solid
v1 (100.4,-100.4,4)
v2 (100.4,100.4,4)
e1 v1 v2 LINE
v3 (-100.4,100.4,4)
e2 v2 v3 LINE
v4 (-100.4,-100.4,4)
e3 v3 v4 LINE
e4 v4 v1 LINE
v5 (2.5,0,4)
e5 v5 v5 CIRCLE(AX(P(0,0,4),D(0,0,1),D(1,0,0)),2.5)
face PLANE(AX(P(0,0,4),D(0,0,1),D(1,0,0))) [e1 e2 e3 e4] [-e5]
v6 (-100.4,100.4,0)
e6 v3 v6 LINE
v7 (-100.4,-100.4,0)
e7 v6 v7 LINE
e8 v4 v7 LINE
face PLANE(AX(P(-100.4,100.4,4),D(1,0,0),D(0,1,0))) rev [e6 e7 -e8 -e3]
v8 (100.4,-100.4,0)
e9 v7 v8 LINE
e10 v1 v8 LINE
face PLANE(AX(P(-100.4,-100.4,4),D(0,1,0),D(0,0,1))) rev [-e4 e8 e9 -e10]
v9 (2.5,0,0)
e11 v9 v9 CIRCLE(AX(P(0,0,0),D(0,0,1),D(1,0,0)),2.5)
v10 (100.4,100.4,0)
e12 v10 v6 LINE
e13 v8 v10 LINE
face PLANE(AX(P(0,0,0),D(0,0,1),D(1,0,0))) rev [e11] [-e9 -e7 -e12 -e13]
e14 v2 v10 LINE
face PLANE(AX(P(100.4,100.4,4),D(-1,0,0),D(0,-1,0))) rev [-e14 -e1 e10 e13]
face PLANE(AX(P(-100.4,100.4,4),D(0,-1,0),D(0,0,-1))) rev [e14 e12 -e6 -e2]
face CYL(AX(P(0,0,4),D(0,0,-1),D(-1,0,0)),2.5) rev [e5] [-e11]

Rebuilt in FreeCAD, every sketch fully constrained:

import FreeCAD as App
import Part
import Sketcher

V = App.Vector


def add_polygon(sketch, points):
    """Adds a closed chain of lines whose ends are joined by coincident constraints."""
    first, n = sketch.GeometryCount, len(points)
    for a, b in zip(points, points[1:] + points[:1]):
        sketch.addGeometry(Part.LineSegment(App.Vector(*a, 0), App.Vector(*b, 0)), False)
    for i in range(n):
        sketch.addConstraint(Sketcher.Constraint("Coincident", first + i, 2, first + (i + 1) % n, 1))

doc = App.newDocument("Part")
body = doc.addObject("PartDesign::Body", "Body")

# Sketch on XY plane
sketch1 = doc.addObject("Sketcher::SketchObject", "Sketch")
body.addObject(sketch1)
sketch1.AttachmentSupport = (doc.XY_Plane, [""])
sketch1.MapMode = "FlatFace"
add_polygon(sketch1, [(-100.4, 100.4), (-100.4, -100.4), (100.4, -100.4), (100.4, 100.4)])  # lines 0-3
sketch1.addGeometry(Part.Circle(V(0, 0, 0), V(0, 0, 1), 2.5), False)  # 4
sketch1.addConstraint([
    Sketcher.Constraint("Vertical", 0),
    Sketcher.Constraint("Horizontal", 1),
    Sketcher.Constraint("Vertical", 2),
    Sketcher.Constraint("Horizontal", 3),
    Sketcher.Constraint("Coincident", 4, 3, -1, 1),
    Sketcher.Constraint("Symmetric", 0, 2, 2, 2, -1, 1),
    Sketcher.Constraint("Equal", 3, 0),
    Sketcher.Constraint("Diameter", 4, 5.0),
    Sketcher.Constraint("DistanceX", 1, 1, 1, 2, 200.8),
])
pad1 = doc.addObject("PartDesign::Pad", "Pad")
body.addObject(pad1)
pad1.Profile = sketch1
pad1.Length = 4

doc.recompute()
